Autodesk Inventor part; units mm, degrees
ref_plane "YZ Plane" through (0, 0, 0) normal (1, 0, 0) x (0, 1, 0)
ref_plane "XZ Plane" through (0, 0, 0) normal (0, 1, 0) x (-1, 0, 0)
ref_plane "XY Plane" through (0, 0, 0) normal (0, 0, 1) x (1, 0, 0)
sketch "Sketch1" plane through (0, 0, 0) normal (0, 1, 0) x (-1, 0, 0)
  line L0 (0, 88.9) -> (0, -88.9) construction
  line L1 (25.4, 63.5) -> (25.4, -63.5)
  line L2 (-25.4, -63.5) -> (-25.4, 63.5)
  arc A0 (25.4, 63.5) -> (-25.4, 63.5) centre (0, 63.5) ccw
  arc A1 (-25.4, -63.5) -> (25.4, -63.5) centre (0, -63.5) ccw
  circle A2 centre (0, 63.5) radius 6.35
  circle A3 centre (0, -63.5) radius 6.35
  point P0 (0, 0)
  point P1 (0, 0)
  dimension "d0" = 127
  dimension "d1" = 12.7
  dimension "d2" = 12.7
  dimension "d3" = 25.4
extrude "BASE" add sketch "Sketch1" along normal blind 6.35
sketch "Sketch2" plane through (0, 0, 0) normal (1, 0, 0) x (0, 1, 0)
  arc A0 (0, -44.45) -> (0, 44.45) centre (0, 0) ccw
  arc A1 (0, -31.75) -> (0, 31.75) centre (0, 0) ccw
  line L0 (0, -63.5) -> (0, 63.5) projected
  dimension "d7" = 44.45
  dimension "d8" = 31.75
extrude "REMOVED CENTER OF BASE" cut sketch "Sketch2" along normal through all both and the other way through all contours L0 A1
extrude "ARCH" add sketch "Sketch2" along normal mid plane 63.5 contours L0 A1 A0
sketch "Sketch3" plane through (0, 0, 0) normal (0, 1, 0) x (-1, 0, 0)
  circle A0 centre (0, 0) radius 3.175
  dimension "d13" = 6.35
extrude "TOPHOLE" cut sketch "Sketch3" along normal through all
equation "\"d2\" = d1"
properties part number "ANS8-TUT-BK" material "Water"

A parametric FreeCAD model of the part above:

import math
import FreeCAD as App
import Part
import Sketcher
Q = App.Units.Quantity

doc = App.newDocument("Part")
params = doc.addObject("Spreadsheet::Sheet", "Params")
for row, (alias, value) in enumerate([
    ("sketch1_radius", "1 in"),
    ("sketch1_diameter", "0.5 in"),
    ("sketch1_height", "5 in"),
    ("pad1_length", "0.25 in"),
    ("sketch2_radius", "1.25 in"),
    ("sketch3_radius", "1.75 in"),
    ("sketch3_radius2", "1.25 in"),
    ("pad2_length", "2.5 in"),
    ("sketch4_diameter", "0.25 in"),
], start=1):
    params.set(f"A{row}", alias)
    params.set(f"B{row}", "=" + value)
    params.setAlias(f"B{row}", alias)

body = doc.addObject("PartDesign::Body", "Body")
body.AllowCompound = True

# Sketch on XZ plane
sketch1 = doc.addObject("Sketcher::SketchObject", "Sketch")
body.addObject(sketch1)
sketch1.AttachmentSupport = (doc.XZ_Plane, [""])
sketch1.MapMode = "FlatFace"
sketch1.addGeometry([
    Part.LineSegment(App.Vector(-25, -64, 0), App.Vector(-25, 64, 0)),  # 0
    Part.ArcOfCircle(Part.Circle(App.Vector(0, 64, 0), App.Vector(0, 0, 1), 25), math.radians(0), math.radians(180)),  # 1
    Part.LineSegment(App.Vector(25, 64, 0), App.Vector(25, -64, 0)),  # 2
    Part.ArcOfCircle(Part.Circle(App.Vector(0, -64, 0), App.Vector(0, 0, 1), 25), math.radians(180), math.radians(360)),  # 3
    Part.Circle(App.Vector(0, -64, 0), App.Vector(0, 0, 1), 6),  # 4
    Part.Circle(App.Vector(0, 64, 0), App.Vector(0, 0, 1), 6),  # 5
], False)
sketch1.addConstraint([
    Sketcher.Constraint("Tangent", 0, 2, 1, 2),
    Sketcher.Constraint("Tangent", 1, 1, 2, 1),
    Sketcher.Constraint("Tangent", 2, 2, 3, 2),
    Sketcher.Constraint("Tangent", 3, 1, 0, 1),
    Sketcher.Constraint("Vertical", 0),
    Sketcher.Constraint("Vertical", 2),
    Sketcher.Constraint("Coincident", 4, 3, 3, 3),
    Sketcher.Constraint("Coincident", 5, 3, 1, 3),
    Sketcher.Constraint("Equal", 4, 5),
    Sketcher.Constraint("Symmetric", 1, 3, 3, 3, -1, 1),
    Sketcher.Constraint("Radius", 1, Q("1 in")),
    Sketcher.Constraint("Diameter", 4, Q("0.5 in")),
    Sketcher.Constraint("DistanceY", 0, 1, 0, 2, Q("5 in")),
])
sketch1.setExpression("Constraints[10]", "Params.sketch1_radius")
sketch1.setExpression("Constraints[11]", "Params.sketch1_diameter")
sketch1.setExpression("Constraints[12]", "Params.sketch1_height")
pad1 = doc.addObject("PartDesign::Pad", "Pad")
body.addObject(pad1)
pad1.Profile = sketch1
pad1.setExpression("Length", "Params.pad1_length")
pad1.Reversed = True

# Sketch on YZ plane
sketch2 = doc.addObject("Sketcher::SketchObject", "Sketch001")
body.addObject(sketch2)
sketch2.AttachmentSupport = (doc.YZ_Plane, [""])
sketch2.MapMode = "FlatFace"
sketch2.addGeometry([
    Part.LineSegment(App.Vector(0, 32, 0), App.Vector(0, -32, 0)),
    Part.ArcOfCircle(Part.Circle(App.Vector(0, 0, 0), App.Vector(0, 0, 1), 32), math.radians(-90), math.radians(90)),
], False)
sketch2.addConstraint([
    Sketcher.Constraint("Coincident", 0, 1, 1, 2),
    Sketcher.Constraint("Coincident", 1, 1, 0, 2),
    Sketcher.Constraint("Vertical", 0),
    Sketcher.Constraint("Coincident", 1, 3, -1, 1),
    Sketcher.Constraint("PointOnObject", 0, 1, -2),
    Sketcher.Constraint("Radius", 1, Q("1.25 in")),
])
sketch2.setExpression("Constraints[5]", "Params.sketch2_radius")
pocket1 = doc.addObject("PartDesign::Pocket", "Pocket")
body.addObject(pocket1)
pocket1.Profile = sketch2
pocket1.Type = "ThroughAll"
pocket1.Midplane = True

# Sketch on YZ plane
sketch3 = doc.addObject("Sketcher::SketchObject", "Sketch002")
body.addObject(sketch3)
sketch3.AttachmentSupport = (doc.YZ_Plane, [""])
sketch3.MapMode = "FlatFace"
sketch3.addGeometry([
    Part.LineSegment(App.Vector(0, -32, 0), App.Vector(0, -44, 0)),
    Part.ArcOfCircle(Part.Circle(App.Vector(0, 0, 0), App.Vector(0, 0, 1), 44), math.radians(-90), math.radians(90)),
    Part.LineSegment(App.Vector(0, 44, 0), App.Vector(0, 32, 0)),
    Part.ArcOfCircle(Part.Circle(App.Vector(0, 0, 0), App.Vector(0, 0, 1), 32), math.radians(-90), math.radians(90)),
], False)
sketch3.addConstraint([
    Sketcher.Constraint("Coincident", 0, 2, 1, 1),
    Sketcher.Constraint("Coincident", 1, 2, 2, 1),
    Sketcher.Constraint("Coincident", 2, 2, 3, 2),
    Sketcher.Constraint("Coincident", 3, 1, 0, 1),
    Sketcher.Constraint("Vertical", 0),
    Sketcher.Constraint("Vertical", 2),
    Sketcher.Constraint("Coincident", 1, 3, -1, 1),
    Sketcher.Constraint("Coincident", 3, 3, -1, 1),
    Sketcher.Constraint("PointOnObject", 0, 2, -2),
    Sketcher.Constraint("PointOnObject", 1, 2, -2),
    Sketcher.Constraint("Radius", 1, Q("1.75 in")),
    Sketcher.Constraint("Radius", 3, Q("1.25 in")),
])
sketch3.setExpression("Constraints[10]", "Params.sketch3_radius")
sketch3.setExpression("Constraints[11]", "Params.sketch3_radius2")
pad2 = doc.addObject("PartDesign::Pad", "Pad001")
body.addObject(pad2)
pad2.Profile = sketch3
pad2.setExpression("Length", "Params.pad2_length")
pad2.Midplane = True

# Sketch on XZ plane
sketch4 = doc.addObject("Sketcher::SketchObject", "Sketch003")
body.addObject(sketch4)
sketch4.AttachmentSupport = (doc.XZ_Plane, [""])
sketch4.MapMode = "FlatFace"
sketch4.addGeometry(Part.Circle(App.Vector(0, 0, 0), App.Vector(0, 0, 1), 3.2), False)
sketch4.addConstraint([
    Sketcher.Constraint("Coincident", 0, 3, -1, 1),
    Sketcher.Constraint("Diameter", 0, Q("0.25 in")),
])
sketch4.setExpression("Constraints[1]", "Params.sketch4_diameter")
pocket2 = doc.addObject("PartDesign::Pocket", "Pocket001")
body.addObject(pocket2)
pocket2.Profile = sketch4
pocket2.Type = "ThroughAll"

doc.recompute()
